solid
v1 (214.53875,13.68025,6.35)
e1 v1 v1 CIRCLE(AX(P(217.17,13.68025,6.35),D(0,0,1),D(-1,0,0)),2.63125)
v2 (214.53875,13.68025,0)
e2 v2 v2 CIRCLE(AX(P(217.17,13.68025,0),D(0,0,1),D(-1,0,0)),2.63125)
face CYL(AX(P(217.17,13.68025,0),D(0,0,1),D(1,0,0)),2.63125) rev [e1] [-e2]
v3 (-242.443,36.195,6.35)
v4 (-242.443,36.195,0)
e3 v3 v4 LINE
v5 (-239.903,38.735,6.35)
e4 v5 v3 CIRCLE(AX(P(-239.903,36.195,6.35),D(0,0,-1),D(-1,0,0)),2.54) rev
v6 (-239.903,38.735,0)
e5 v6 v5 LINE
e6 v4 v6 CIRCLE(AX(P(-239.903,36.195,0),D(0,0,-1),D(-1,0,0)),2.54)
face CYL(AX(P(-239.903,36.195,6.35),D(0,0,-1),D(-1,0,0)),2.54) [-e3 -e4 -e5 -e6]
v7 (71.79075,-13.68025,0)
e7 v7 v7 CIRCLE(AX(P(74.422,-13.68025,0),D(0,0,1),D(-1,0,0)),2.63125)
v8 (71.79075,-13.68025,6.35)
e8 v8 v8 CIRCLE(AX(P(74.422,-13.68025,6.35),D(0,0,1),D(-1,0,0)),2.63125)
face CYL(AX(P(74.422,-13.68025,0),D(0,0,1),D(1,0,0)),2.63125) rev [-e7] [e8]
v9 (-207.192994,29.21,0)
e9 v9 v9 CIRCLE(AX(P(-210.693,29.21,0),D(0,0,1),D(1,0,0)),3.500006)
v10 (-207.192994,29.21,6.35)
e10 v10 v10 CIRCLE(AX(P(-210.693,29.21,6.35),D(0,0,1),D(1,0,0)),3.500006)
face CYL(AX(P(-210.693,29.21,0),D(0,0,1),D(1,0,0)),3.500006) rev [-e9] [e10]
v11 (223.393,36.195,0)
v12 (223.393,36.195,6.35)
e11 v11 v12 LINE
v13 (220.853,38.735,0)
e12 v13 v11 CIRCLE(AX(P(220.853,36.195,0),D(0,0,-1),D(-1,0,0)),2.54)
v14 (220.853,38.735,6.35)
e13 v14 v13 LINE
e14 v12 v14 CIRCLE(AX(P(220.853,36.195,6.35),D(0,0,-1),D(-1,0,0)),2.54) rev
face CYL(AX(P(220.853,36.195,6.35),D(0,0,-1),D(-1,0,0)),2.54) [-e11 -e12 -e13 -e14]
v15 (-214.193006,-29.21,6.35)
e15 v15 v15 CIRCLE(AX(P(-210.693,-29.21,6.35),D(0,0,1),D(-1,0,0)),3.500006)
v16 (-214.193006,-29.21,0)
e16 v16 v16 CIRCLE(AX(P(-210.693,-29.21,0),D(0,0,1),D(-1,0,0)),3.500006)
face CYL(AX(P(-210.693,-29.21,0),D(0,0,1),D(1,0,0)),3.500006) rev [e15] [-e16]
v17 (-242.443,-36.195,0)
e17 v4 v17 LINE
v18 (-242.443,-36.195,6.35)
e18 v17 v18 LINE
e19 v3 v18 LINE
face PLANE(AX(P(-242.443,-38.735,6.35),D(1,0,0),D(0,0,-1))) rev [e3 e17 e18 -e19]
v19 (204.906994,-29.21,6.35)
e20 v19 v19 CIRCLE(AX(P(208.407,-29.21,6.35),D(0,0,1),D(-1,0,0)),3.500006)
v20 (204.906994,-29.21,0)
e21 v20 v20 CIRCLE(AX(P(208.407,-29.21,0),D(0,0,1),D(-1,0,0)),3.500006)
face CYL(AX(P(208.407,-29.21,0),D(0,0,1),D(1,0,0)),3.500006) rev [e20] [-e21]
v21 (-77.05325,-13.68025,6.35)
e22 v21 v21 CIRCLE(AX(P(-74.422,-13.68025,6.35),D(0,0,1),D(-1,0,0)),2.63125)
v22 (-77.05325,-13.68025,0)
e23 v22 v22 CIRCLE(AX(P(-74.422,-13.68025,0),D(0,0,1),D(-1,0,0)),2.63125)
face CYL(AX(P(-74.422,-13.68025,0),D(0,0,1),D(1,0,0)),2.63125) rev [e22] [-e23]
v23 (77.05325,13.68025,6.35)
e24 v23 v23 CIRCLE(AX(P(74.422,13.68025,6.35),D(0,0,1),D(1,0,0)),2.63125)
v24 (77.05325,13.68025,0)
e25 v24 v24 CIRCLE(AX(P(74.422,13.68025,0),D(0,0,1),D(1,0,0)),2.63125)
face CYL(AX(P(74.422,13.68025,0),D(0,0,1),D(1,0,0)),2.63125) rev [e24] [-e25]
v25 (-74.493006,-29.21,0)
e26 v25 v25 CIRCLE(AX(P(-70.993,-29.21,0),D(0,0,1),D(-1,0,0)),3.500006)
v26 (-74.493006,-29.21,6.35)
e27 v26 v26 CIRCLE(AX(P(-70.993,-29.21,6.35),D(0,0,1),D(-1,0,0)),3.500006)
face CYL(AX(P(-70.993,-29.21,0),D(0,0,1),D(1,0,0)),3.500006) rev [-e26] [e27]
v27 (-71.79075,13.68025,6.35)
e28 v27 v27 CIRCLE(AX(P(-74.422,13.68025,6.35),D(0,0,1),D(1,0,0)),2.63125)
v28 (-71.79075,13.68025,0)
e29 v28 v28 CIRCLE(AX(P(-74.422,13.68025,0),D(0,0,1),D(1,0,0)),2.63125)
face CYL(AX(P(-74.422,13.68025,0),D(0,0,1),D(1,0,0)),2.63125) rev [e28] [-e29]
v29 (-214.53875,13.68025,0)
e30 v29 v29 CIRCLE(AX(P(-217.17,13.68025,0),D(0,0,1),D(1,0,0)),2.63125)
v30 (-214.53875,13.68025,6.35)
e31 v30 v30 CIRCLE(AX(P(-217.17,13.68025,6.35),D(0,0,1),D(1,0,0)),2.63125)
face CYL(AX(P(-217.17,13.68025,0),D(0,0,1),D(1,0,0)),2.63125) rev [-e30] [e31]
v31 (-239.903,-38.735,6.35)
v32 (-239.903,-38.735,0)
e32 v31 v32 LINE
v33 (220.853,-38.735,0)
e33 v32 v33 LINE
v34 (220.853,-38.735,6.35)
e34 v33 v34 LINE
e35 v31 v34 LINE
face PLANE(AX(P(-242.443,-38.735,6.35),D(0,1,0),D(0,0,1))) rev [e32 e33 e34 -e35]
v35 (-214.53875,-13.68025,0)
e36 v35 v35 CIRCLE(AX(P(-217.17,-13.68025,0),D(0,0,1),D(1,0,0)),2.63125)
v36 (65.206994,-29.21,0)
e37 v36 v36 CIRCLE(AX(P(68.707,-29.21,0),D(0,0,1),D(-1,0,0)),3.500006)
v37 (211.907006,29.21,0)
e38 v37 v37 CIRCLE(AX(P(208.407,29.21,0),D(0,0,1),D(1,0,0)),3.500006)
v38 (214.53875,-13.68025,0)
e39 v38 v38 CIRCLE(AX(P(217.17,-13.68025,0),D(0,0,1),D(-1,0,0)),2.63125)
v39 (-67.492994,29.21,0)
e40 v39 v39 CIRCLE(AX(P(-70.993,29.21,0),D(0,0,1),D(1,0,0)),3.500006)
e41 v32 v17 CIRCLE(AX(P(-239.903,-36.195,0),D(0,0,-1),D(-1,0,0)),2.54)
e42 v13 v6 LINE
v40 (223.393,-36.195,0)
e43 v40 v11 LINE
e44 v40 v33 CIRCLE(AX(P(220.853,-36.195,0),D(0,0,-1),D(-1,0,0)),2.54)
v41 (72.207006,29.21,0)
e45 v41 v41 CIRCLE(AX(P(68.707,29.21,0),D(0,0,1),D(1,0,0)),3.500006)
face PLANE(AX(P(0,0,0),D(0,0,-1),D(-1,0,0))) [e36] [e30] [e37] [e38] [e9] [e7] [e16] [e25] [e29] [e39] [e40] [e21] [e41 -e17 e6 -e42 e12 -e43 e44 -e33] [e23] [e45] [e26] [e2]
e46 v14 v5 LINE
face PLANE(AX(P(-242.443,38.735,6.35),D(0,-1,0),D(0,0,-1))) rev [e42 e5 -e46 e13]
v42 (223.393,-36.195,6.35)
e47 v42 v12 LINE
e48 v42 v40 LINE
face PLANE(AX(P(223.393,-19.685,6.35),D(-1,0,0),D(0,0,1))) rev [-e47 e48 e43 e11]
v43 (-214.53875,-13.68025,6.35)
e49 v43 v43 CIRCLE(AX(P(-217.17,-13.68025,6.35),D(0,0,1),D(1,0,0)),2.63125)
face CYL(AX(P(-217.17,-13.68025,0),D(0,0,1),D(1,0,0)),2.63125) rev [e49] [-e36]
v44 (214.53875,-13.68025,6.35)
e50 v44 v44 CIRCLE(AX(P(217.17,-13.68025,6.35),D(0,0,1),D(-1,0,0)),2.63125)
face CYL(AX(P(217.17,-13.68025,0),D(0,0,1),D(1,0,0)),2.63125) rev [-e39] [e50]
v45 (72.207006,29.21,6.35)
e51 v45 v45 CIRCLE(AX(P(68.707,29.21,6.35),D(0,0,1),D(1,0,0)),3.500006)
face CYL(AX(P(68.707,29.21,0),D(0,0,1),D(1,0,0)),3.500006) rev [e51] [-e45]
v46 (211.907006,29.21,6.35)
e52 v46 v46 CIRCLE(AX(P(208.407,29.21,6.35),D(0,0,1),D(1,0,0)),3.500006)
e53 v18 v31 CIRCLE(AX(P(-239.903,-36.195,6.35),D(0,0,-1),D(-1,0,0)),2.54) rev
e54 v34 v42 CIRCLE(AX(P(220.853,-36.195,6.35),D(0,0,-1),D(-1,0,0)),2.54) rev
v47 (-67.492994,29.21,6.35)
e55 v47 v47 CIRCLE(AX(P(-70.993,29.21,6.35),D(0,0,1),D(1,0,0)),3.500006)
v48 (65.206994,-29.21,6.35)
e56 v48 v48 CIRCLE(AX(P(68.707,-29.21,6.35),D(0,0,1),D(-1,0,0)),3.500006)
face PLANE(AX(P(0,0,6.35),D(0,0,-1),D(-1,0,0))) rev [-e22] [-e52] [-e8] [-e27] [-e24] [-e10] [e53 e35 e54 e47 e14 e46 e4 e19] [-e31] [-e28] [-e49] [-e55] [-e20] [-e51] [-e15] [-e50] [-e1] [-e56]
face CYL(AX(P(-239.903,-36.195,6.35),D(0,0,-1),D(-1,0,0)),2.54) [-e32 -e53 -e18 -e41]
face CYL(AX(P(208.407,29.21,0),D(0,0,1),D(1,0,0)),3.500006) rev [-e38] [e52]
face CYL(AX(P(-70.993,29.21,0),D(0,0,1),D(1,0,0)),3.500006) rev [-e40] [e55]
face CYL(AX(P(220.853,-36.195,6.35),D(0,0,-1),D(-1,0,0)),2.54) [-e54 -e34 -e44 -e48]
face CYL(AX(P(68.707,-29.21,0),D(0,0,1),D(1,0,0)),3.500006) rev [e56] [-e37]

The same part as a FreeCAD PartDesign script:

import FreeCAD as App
import Part
import Sketcher
Q = App.Units.Quantity


def edges_at(feature, points):
    """Names of the edges that pass closest to the given points."""
    edges = feature.Shape.Edges
    near = lambda p: min(range(len(edges)), key=lambda i: edges[i].distToShape(Part.Vertex(*p))[0])
    return sorted({f"Edge{near(p) + 1}" for p in points})


def add_polygon(sketch, points):
    """Adds a closed chain of lines whose ends are joined by coincident constraints."""
    first, n = sketch.GeometryCount, len(points)
    for a, b in zip(points, points[1:] + points[:1]):
        sketch.addGeometry(Part.LineSegment(App.Vector(*a, 0), App.Vector(*b, 0)), False)
    for i in range(n):
        sketch.addConstraint(Sketcher.Constraint("Coincident", first + i, 2, first + (i + 1) % n, 1))

doc = App.newDocument("Part")
params = doc.addObject("Spreadsheet::Sheet", "Params")
for row, (alias, value) in enumerate([
    ("sketch1_width", "18.34 in"),
    ("sketch1_height", "3.05 in"),
    ("pad1_length", "0.25 in"),
    ("fillet_radius", "0.1 in"),
], start=1):
    params.set(f"A{row}", alias)
    params.set(f"B{row}", "=" + value)
    params.setAlias(f"B{row}", alias)

body = doc.addObject("PartDesign::Body", "Body")

sketch1 = doc.addObject("Sketcher::SketchObject", "Sketch")
body.addObject(sketch1)
sketch1.AttachmentSupport = (doc.XY_Plane, [""])
sketch1.MapMode = "FlatFace"
add_polygon(sketch1, [(-242, 39), (-242, -39), (223, -39), (223, 39)])
sketch1.addConstraint(Sketcher.Constraint("Vertical", 0))
sketch1.addConstraint(Sketcher.Constraint("Horizontal", 1))
sketch1.addConstraint(Sketcher.Constraint("Vertical", 2))
sketch1.addConstraint(Sketcher.Constraint("Horizontal", 3))
sketch1.addConstraint(Sketcher.Constraint("DistanceX", 1, 1, 1, 2, Q("18.34 in")))
sketch1.addConstraint(Sketcher.Constraint("DistanceY", 0, 2, 0, 1, Q("3.05 in")))
sketch1.addConstraint(Sketcher.Constraint("DistanceX", 0, 2, -1, 1, Q("9.545 in")))
sketch1.addConstraint(Sketcher.Constraint("DistanceY", 0, 2, -1, 1, Q("1.525 in")))
sketch1.setExpression("Constraints[8]", "Params.sketch1_width")
sketch1.setExpression("Constraints[9]", "Params.sketch1_height")
pad1 = doc.addObject("PartDesign::Pad", "Pad")
body.addObject(pad1)
pad1.Profile = sketch1
pad1.setExpression("Length", "Params.pad1_length")

sketch2 = doc.addObject("Sketcher::SketchObject", "Sketch001")
body.addObject(sketch2)
sketch2.AttachmentSupport = (doc.XY_Plane, [""])
sketch2.MapMode = "FlatFace"
sketch2.AttachmentOffset = App.Placement(App.Vector(0, 0, 0.25 * 25.4), App.Rotation())
sketch2.addGeometry(Part.Circle(App.Vector(-217.2, 13.7, 0), App.Vector(0, 0, 1), 2.6), False)
sketch2.addGeometry(Part.Circle(App.Vector(-217.2, -13.7, 0), App.Vector(0, 0, 1), 2.6), False)
sketch2.addGeometry(Part.Circle(App.Vector(217.2, -13.7, 0), App.Vector(0, 0, 1), 2.6), False)
sketch2.addGeometry(Part.Circle(App.Vector(217.2, 13.7, 0), App.Vector(0, 0, 1), 2.6), False)
sketch2.addGeometry(Part.Circle(App.Vector(-74.4, 13.7, 0), App.Vector(0, 0, 1), 2.6), False)
sketch2.addGeometry(Part.Circle(App.Vector(-74.4, -13.7, 0), App.Vector(0, 0, 1), 2.6), False)
sketch2.addGeometry(Part.Circle(App.Vector(74.4, 13.7, 0), App.Vector(0, 0, 1), 2.6), False)
sketch2.addGeometry(Part.Circle(App.Vector(74.4, -13.7, 0), App.Vector(0, 0, 1), 2.6), False)
sketch2.addConstraint(Sketcher.Constraint("Equal", 0, 1))
sketch2.addConstraint(Sketcher.Constraint("Equal", 1, 2))
sketch2.addConstraint(Sketcher.Constraint("Equal", 2, 3))
sketch2.addConstraint(Sketcher.Constraint("Equal", 3, 4))
sketch2.addConstraint(Sketcher.Constraint("Equal", 4, 5))
sketch2.addConstraint(Sketcher.Constraint("Equal", 5, 6))
sketch2.addConstraint(Sketcher.Constraint("Equal", 6, 7))
sketch2.addConstraint(Sketcher.Constraint("Symmetric", 0, 3, 2, 3, -1, 1))
sketch2.addConstraint(Sketcher.Constraint("Symmetric", 1, 3, 3, 3, -1, 1))
sketch2.addConstraint(Sketcher.Constraint("Symmetric", 5, 3, 6, 3, -1, 1))
sketch2.addConstraint(Sketcher.Constraint("Symmetric", 4, 3, 7, 3, -1, 1))
sketch2.addConstraint(Sketcher.Constraint("Symmetric", 1, 3, 2, 3, -2))
sketch2.addConstraint(Sketcher.Constraint("Symmetric", 4, 3, 6, 3, -2))
sketch2.addConstraint(Sketcher.Constraint("Horizontal", 3, 3, 4, 3))
sketch2.addConstraint(Sketcher.Constraint("DistanceX", 1, 3, 2, 3, Q("17.1 in")))
sketch2.addConstraint(Sketcher.Constraint("Diameter", 0, 5.2625))
sketch2.addConstraint(Sketcher.Constraint("DistanceX", 4, 3, -1, 1, Q("2.93 in")))
sketch2.addConstraint(Sketcher.Constraint("DistanceY", 1, 3, 0, 3, 27.3605))
pocket1 = doc.addObject("PartDesign::Pocket", "Pocket")
body.addObject(pocket1)
pocket1.Profile = sketch2
pocket1.Type = "ThroughAll"

sketch3 = doc.addObject("Sketcher::SketchObject", "Sketch002")
body.addObject(sketch3)
sketch3.AttachmentSupport = (doc.XY_Plane, [""])
sketch3.MapMode = "FlatFace"
sketch3.AttachmentOffset = App.Placement(App.Vector(0, 0, 0.25 * 25.4), App.Rotation())
sketch3.addGeometry(Part.Circle(App.Vector(-210.7, 29.2, 0), App.Vector(0, 0, 1), 3.5), False)
sketch3.addGeometry(Part.Circle(App.Vector(-71, 29.2, 0), App.Vector(0, 0, 1), 3.5), False)
sketch3.addGeometry(Part.Circle(App.Vector(68.7, 29.2, 0), App.Vector(0, 0, 1), 3.5), False)
sketch3.addGeometry(Part.Circle(App.Vector(208.4, 29.2, 0), App.Vector(0, 0, 1), 3.5), False)
sketch3.addGeometry(Part.Circle(App.Vector(208.4, -29.2, 0), App.Vector(0, 0, 1), 3.5), False)
sketch3.addGeometry(Part.Circle(App.Vector(68.7, -29.2, 0), App.Vector(0, 0, 1), 3.5), False)
sketch3.addGeometry(Part.Circle(App.Vector(-71, -29.2, 0), App.Vector(0, 0, 1), 3.5), False)
sketch3.addGeometry(Part.Circle(App.Vector(-210.7, -29.2, 0), App.Vector(0, 0, 1), 3.5), False)
sketch3.addConstraint(Sketcher.Constraint("Equal", 0, 1))
sketch3.addConstraint(Sketcher.Constraint("Equal", 1, 2))
sketch3.addConstraint(Sketcher.Constraint("Equal", 2, 3))
sketch3.addConstraint(Sketcher.Constraint("Equal", 3, 4))
sketch3.addConstraint(Sketcher.Constraint("Equal", 4, 5))
sketch3.addConstraint(Sketcher.Constraint("Equal", 5, 6))
sketch3.addConstraint(Sketcher.Constraint("Equal", 6, 7))
sketch3.addConstraint(Sketcher.Constraint("Symmetric", 3, 3, 4, 3, -1))
sketch3.addConstraint(Sketcher.Constraint("Symmetric", 2, 3, 5, 3, -1))
sketch3.addConstraint(Sketcher.Constraint("Symmetric", 1, 3, 6, 3, -1))
sketch3.addConstraint(Sketcher.Constraint("Symmetric", 0, 3, 7, 3, -1))
sketch3.addConstraint(Sketcher.Constraint("Horizontal", 0, 3, 1, 3))
sketch3.addConstraint(Sketcher.Constraint("Horizontal", 1, 3, 2, 3))
sketch3.addConstraint(Sketcher.Constraint("Horizontal", 2, 3, 3, 3))
sketch3.addConstraint(Sketcher.Constraint("DistanceX", 0, 3, 2, 3, Q("11 in")))
sketch3.addConstraint(Sketcher.Constraint("DistanceX", 1, 3, 3, 3, Q("11 in")))
sketch3.addConstraint(Sketcher.Constraint("DistanceX", 0, 3, 1, 3, Q("5.5 in")))
sketch3.addConstraint(Sketcher.Constraint("DistanceY", 4, 3, 3, 3, Q("2.3 in")))
sketch3.addConstraint(Sketcher.Constraint("Diameter", 0, 7.000011))
sketch3.addConstraint(Sketcher.Constraint("DistanceX", 0, 3, -1, 1, Q("8.295 in")))
pocket2 = doc.addObject("PartDesign::Pocket", "Pocket001")
body.addObject(pocket2)
pocket2.Profile = sketch3
pocket2.Type = "ThroughAll"
doc.recompute()

fillet = doc.addObject("PartDesign::Fillet", "Fillet")
body.addObject(fillet)
fillet.Base = (pocket2, edges_at(pocket2, [
    (223.393, -38.735, 3.175),
    (-242.443, -38.735, 3.175),
    (-242.443, 38.735, 3.175),
    (223.393, 38.735, 3.175),
]))
fillet.setExpression("Radius", "Params.fillet_radius")

doc.recompute()
